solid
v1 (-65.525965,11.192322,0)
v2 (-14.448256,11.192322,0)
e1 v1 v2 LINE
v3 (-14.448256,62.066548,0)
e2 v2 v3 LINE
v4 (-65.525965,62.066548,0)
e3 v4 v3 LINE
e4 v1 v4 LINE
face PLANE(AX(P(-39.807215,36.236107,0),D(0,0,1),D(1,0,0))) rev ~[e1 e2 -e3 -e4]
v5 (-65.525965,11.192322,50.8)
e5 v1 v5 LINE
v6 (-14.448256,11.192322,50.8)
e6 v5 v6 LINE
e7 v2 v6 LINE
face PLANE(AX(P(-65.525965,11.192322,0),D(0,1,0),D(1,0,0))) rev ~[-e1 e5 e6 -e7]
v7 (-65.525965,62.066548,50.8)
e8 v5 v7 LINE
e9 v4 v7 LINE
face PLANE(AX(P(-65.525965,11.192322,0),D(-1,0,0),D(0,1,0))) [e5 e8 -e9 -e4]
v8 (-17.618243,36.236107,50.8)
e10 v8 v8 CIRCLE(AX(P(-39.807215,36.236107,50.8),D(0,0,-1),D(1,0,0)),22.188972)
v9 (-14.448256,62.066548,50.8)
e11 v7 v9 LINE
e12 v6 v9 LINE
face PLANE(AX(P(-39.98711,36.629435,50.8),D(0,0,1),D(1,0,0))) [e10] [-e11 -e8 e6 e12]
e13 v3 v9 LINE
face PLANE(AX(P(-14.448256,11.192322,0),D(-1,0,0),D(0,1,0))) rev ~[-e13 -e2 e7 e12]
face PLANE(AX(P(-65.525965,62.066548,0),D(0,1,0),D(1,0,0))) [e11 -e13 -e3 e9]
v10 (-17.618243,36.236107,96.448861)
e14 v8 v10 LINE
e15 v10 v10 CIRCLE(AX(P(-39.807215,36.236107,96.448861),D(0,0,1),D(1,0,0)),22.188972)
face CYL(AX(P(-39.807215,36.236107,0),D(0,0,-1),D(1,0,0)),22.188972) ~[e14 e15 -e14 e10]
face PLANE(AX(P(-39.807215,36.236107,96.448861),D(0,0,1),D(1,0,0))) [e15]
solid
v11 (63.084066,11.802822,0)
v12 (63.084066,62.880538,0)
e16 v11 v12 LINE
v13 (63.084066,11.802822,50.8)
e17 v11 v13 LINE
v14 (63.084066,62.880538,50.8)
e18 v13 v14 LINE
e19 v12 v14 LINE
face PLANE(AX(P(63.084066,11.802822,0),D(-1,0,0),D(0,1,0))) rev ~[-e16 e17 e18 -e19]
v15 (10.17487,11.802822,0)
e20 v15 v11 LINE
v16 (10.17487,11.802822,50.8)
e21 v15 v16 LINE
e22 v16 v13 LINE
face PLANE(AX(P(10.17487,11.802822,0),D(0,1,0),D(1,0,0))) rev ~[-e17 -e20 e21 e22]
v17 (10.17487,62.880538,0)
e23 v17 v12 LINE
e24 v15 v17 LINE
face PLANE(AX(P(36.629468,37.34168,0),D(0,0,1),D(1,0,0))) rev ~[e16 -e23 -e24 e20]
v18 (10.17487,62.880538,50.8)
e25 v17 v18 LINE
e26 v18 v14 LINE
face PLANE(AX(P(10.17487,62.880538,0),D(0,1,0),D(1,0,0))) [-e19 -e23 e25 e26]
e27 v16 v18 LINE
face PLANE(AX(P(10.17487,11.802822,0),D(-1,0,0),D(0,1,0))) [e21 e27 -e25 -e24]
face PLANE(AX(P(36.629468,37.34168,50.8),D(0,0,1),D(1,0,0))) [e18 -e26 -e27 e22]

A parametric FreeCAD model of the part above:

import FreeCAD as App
import Part
import Sketcher
Q = App.Units.Quantity

doc = App.newDocument("Part")
body = doc.addObject("PartDesign::Body", "Body")

sketch1 = doc.addObject("Sketcher::SketchObject", "Sketch")
body.addObject(sketch1)
sketch1.AttachmentSupport = (doc.XY_Plane, [""])
sketch1.MapMode = "FlatFace"
sketch1.addGeometry(Part.LineSegment(App.Vector(-66, 62, 0), App.Vector(-66, 11, 0)), False)
sketch1.addGeometry(Part.LineSegment(App.Vector(-66, 11, 0), App.Vector(-14, 11, 0)), False)
sketch1.addGeometry(Part.LineSegment(App.Vector(-14, 11, 0), App.Vector(-14, 62, 0)), False)
sketch1.addGeometry(Part.LineSegment(App.Vector(-14, 62, 0), App.Vector(-66, 62, 0)), False)
sketch1.addConstraint(Sketcher.Constraint("Coincident", 0, 2, 1, 1))
sketch1.addConstraint(Sketcher.Constraint("Coincident", 1, 2, 2, 1))
sketch1.addConstraint(Sketcher.Constraint("Coincident", 2, 2, 3, 1))
sketch1.addConstraint(Sketcher.Constraint("Coincident", 3, 2, 0, 1))
sketch1.addConstraint(Sketcher.Constraint("Vertical", 0))
sketch1.addConstraint(Sketcher.Constraint("Horizontal", 1))
sketch1.addConstraint(Sketcher.Constraint("Vertical", 2))
sketch1.addConstraint(Sketcher.Constraint("Horizontal", 3))
sketch1.addConstraint(Sketcher.Constraint("DistanceX", 1, 1, 1, 2, Q("51.077709 mm")))
sketch1.addConstraint(Sketcher.Constraint("DistanceY", 0, 2, 0, 1, Q("50.874226 mm")))
sketch1.addConstraint(Sketcher.Constraint("DistanceX", 0, 2, -1, 1, Q("65.525965 mm")))
sketch1.addConstraint(Sketcher.Constraint("DistanceY", -1, 1, 0, 2, Q("11.192322 mm")))
pad1 = doc.addObject("PartDesign::Pad", "Pad")
body.addObject(pad1)
pad1.Profile = sketch1
pad1.Length = Q("2 in")

sketch2 = doc.addObject("Sketcher::SketchObject", "Sketch001")
body.addObject(sketch2)
sketch2.AttachmentSupport = (doc.XY_Plane, [""])
sketch2.MapMode = "FlatFace"
sketch2.addGeometry(Part.Circle(App.Vector(-40, 36, 0), App.Vector(0, 0, 1), 22), False)
sketch2.addConstraint(Sketcher.Constraint("Diameter", 0, Q("44.377944 mm")))
sketch2.addConstraint(Sketcher.Constraint("DistanceX", 0, 3, -1, 1, Q("39.807215 mm")))
sketch2.addConstraint(Sketcher.Constraint("DistanceY", -1, 1, 0, 3, Q("36.236107 mm")))
pad2 = doc.addObject("PartDesign::Pad", "Pad001")
body.addObject(pad2)
pad2.Profile = sketch2
pad2.Length = 96.448861
body2 = doc.addObject("PartDesign::Body", "Body001")

sketch3 = doc.addObject("Sketcher::SketchObject", "Sketch002")
body2.addObject(sketch3)
sketch3.AttachmentSupport = (doc.getObject("XY_Plane001"), [""])
sketch3.MapMode = "FlatFace"
sketch3.addGeometry(Part.LineSegment(App.Vector(10, 63, 0), App.Vector(10, 12, 0)), False)
sketch3.addGeometry(Part.LineSegment(App.Vector(10, 12, 0), App.Vector(63, 12, 0)), False)
sketch3.addGeometry(Part.LineSegment(App.Vector(63, 12, 0), App.Vector(63, 63, 0)), False)
sketch3.addGeometry(Part.LineSegment(App.Vector(63, 63, 0), App.Vector(10, 63, 0)), False)
sketch3.addConstraint(Sketcher.Constraint("Coincident", 0, 2, 1, 1))
sketch3.addConstraint(Sketcher.Constraint("Coincident", 1, 2, 2, 1))
sketch3.addConstraint(Sketcher.Constraint("Coincident", 2, 2, 3, 1))
sketch3.addConstraint(Sketcher.Constraint("Coincident", 3, 2, 0, 1))
sketch3.addConstraint(Sketcher.Constraint("Vertical", 0))
sketch3.addConstraint(Sketcher.Constraint("Horizontal", 1))
sketch3.addConstraint(Sketcher.Constraint("Vertical", 2))
sketch3.addConstraint(Sketcher.Constraint("Horizontal", 3))
sketch3.addConstraint(Sketcher.Constraint("DistanceX", 1, 1, 1, 2, Q("52.909196 mm")))
sketch3.addConstraint(Sketcher.Constraint("DistanceY", 0, 2, 0, 1, Q("51.077716 mm")))
sketch3.addConstraint(Sketcher.Constraint("DistanceX", -1, 1, 0, 2, Q("10.17487 mm")))
sketch3.addConstraint(Sketcher.Constraint("DistanceY", -1, 1, 0, 2, Q("11.802822 mm")))
pad3 = doc.addObject("PartDesign::Pad", "Pad002")
body2.addObject(pad3)
pad3.Profile = sketch3
pad3.Length = Q("2 in")

doc.recompute()
